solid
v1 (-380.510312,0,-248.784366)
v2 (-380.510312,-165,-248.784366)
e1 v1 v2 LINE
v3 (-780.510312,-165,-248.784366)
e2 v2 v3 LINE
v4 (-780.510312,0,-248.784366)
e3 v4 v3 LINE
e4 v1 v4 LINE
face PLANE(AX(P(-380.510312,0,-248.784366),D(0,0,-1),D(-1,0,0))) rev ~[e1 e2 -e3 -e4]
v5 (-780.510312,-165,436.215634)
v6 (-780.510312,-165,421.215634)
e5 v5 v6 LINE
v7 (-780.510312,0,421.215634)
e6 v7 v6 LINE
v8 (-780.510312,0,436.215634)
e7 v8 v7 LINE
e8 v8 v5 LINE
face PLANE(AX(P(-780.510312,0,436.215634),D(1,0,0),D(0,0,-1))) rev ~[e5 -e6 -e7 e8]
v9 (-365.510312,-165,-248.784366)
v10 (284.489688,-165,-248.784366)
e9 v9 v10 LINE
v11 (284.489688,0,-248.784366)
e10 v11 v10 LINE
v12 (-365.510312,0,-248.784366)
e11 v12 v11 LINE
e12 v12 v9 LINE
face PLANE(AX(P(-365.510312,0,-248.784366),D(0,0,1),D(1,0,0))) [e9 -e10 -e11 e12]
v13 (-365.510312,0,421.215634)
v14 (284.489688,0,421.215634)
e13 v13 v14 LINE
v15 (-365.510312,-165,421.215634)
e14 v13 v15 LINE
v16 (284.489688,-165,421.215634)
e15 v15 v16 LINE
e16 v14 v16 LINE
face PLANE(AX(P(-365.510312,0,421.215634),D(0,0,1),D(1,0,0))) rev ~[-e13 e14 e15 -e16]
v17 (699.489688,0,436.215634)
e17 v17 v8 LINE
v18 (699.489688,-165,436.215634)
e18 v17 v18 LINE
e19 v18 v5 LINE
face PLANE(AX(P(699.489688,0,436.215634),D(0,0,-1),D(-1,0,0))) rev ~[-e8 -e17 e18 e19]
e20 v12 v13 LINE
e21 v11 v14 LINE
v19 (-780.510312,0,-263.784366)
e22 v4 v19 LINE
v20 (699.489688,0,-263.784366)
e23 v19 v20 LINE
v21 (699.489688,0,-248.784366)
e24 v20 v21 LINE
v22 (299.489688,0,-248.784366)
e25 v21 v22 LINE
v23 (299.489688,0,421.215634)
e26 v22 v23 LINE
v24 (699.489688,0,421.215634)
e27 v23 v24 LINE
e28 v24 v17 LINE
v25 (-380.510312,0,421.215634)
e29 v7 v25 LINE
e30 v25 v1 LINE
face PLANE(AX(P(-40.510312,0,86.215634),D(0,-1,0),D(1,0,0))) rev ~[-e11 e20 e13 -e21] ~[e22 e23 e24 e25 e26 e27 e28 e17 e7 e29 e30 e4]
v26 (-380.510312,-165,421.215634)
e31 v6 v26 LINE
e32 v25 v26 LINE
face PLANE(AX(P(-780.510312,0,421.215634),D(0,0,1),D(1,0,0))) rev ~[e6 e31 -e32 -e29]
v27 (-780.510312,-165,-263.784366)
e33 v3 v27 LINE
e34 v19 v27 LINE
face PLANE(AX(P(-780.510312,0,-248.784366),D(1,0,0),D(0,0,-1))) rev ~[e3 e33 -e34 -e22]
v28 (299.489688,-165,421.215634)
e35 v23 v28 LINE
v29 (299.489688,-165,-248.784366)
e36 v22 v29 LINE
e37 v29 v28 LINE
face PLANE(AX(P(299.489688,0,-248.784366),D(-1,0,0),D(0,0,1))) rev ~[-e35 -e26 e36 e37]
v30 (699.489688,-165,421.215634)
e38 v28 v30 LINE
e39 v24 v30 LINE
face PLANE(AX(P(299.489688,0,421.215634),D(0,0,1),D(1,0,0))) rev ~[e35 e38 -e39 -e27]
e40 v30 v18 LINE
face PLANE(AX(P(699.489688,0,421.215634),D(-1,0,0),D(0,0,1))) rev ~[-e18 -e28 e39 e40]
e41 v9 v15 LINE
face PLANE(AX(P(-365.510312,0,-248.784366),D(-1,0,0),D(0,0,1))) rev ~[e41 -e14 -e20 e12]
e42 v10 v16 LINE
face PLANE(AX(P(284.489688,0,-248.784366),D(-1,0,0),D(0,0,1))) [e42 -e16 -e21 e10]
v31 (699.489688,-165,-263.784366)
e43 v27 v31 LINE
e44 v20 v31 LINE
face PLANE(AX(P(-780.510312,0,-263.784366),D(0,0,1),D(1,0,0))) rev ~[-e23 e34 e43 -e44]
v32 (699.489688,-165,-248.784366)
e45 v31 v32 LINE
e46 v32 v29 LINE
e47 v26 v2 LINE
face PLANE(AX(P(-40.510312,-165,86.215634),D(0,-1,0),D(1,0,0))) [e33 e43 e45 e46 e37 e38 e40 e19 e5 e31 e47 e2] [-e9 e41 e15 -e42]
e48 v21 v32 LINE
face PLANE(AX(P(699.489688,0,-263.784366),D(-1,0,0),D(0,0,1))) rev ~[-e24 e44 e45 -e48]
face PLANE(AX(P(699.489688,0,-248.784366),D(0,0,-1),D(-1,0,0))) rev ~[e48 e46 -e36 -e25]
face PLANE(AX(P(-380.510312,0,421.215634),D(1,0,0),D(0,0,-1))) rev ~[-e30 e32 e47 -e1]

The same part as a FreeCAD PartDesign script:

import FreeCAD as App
import Part
import Sketcher

V = App.Vector


def add_polygon(sketch, points):
    """Adds a closed chain of lines whose ends are joined by coincident constraints."""
    first, n = sketch.GeometryCount, len(points)
    for a, b in zip(points, points[1:] + points[:1]):
        sketch.addGeometry(Part.LineSegment(App.Vector(*a, 0), App.Vector(*b, 0)), False)
    for i in range(n):
        sketch.addConstraint(Sketcher.Constraint("Coincident", first + i, 2, first + (i + 1) % n, 1))

doc = App.newDocument("Part")
body = doc.addObject("PartDesign::Body", "Body")

sketch1 = doc.addObject("Sketcher::SketchObject", "Sketch")
body.addObject(sketch1)
sketch1.AttachmentSupport = (doc.XZ_Plane, [""])
sketch1.MapMode = "FlatFace"
add_polygon(sketch1, [(-781, 436), (-781, 421), (-381, 421), (-381, -249), (-781, -249), (-781, -264), (699, -264), (699, -249), (299, -249), (299, 421), (699, 421), (699, 436)])
add_polygon(sketch1, [(284, -249), (-366, -249), (-366, 421), (284, 421)])
sketch1.addConstraint(Sketcher.Constraint("Vertical", 0))
sketch1.addConstraint(Sketcher.Constraint("Horizontal", 1))
sketch1.addConstraint(Sketcher.Constraint("Vertical", 2))
sketch1.addConstraint(Sketcher.Constraint("Horizontal", 3))
sketch1.addConstraint(Sketcher.Constraint("Vertical", 4))
sketch1.addConstraint(Sketcher.Constraint("Horizontal", 5))
sketch1.addConstraint(Sketcher.Constraint("Vertical", 6))
sketch1.addConstraint(Sketcher.Constraint("Horizontal", 7))
sketch1.addConstraint(Sketcher.Constraint("Vertical", 8))
sketch1.addConstraint(Sketcher.Constraint("Horizontal", 9))
sketch1.addConstraint(Sketcher.Constraint("Vertical", 10))
sketch1.addConstraint(Sketcher.Constraint("Horizontal", 11))
sketch1.addConstraint(Sketcher.Constraint("Horizontal", 12))
sketch1.addConstraint(Sketcher.Constraint("Vertical", 13))
sketch1.addConstraint(Sketcher.Constraint("Horizontal", 14))
sketch1.addConstraint(Sketcher.Constraint("Vertical", 15))
sketch1.addConstraint(Sketcher.Constraint("Horizontal", 3, 2, 6, 2))
sketch1.addConstraint(Sketcher.Constraint("Horizontal", 1, 2, 8, 2))
sketch1.addConstraint(Sketcher.Constraint("Horizontal", 7, 2, 12, 2))
sketch1.addConstraint(Sketcher.Constraint("Horizontal", 9, 2, 13, 2))
sketch1.addConstraint(Sketcher.Constraint("Vertical", 0, 2, 3, 2))
sketch1.addConstraint(Sketcher.Constraint("Vertical", 6, 2, 9, 2))
sketch1.addConstraint(Sketcher.Constraint("Equal", 3, 7))
sketch1.addConstraint(Sketcher.Constraint("Equal", 0, 4))
sketch1.addConstraint(Sketcher.Constraint("DistanceX", 1, 1, 1, 2, 400.0))
sketch1.addConstraint(Sketcher.Constraint("DistanceX", 5, 1, 5, 2, 1480.0))
sketch1.addConstraint(Sketcher.Constraint("DistanceX", 12, 2, 12, 1, 650.0))
sketch1.addConstraint(Sketcher.Constraint("DistanceY", 0, 2, 0, 1, 15.0))
sketch1.addConstraint(Sketcher.Constraint("DistanceY", 2, 2, 2, 1, 670.0))
sketch1.addConstraint(Sketcher.Constraint("DistanceX", 2, 2, 12, 2, 15.0))
sketch1.addConstraint(Sketcher.Constraint("DistanceX", 0, 2, -1, 1, 780.510312))
sketch1.addConstraint(Sketcher.Constraint("DistanceY", -1, 1, 0, 2, 421.215634))
pad1 = doc.addObject("PartDesign::Pad", "Pad")
body.addObject(pad1)
pad1.Profile = sketch1
pad1.Length = 165

doc.recompute()
